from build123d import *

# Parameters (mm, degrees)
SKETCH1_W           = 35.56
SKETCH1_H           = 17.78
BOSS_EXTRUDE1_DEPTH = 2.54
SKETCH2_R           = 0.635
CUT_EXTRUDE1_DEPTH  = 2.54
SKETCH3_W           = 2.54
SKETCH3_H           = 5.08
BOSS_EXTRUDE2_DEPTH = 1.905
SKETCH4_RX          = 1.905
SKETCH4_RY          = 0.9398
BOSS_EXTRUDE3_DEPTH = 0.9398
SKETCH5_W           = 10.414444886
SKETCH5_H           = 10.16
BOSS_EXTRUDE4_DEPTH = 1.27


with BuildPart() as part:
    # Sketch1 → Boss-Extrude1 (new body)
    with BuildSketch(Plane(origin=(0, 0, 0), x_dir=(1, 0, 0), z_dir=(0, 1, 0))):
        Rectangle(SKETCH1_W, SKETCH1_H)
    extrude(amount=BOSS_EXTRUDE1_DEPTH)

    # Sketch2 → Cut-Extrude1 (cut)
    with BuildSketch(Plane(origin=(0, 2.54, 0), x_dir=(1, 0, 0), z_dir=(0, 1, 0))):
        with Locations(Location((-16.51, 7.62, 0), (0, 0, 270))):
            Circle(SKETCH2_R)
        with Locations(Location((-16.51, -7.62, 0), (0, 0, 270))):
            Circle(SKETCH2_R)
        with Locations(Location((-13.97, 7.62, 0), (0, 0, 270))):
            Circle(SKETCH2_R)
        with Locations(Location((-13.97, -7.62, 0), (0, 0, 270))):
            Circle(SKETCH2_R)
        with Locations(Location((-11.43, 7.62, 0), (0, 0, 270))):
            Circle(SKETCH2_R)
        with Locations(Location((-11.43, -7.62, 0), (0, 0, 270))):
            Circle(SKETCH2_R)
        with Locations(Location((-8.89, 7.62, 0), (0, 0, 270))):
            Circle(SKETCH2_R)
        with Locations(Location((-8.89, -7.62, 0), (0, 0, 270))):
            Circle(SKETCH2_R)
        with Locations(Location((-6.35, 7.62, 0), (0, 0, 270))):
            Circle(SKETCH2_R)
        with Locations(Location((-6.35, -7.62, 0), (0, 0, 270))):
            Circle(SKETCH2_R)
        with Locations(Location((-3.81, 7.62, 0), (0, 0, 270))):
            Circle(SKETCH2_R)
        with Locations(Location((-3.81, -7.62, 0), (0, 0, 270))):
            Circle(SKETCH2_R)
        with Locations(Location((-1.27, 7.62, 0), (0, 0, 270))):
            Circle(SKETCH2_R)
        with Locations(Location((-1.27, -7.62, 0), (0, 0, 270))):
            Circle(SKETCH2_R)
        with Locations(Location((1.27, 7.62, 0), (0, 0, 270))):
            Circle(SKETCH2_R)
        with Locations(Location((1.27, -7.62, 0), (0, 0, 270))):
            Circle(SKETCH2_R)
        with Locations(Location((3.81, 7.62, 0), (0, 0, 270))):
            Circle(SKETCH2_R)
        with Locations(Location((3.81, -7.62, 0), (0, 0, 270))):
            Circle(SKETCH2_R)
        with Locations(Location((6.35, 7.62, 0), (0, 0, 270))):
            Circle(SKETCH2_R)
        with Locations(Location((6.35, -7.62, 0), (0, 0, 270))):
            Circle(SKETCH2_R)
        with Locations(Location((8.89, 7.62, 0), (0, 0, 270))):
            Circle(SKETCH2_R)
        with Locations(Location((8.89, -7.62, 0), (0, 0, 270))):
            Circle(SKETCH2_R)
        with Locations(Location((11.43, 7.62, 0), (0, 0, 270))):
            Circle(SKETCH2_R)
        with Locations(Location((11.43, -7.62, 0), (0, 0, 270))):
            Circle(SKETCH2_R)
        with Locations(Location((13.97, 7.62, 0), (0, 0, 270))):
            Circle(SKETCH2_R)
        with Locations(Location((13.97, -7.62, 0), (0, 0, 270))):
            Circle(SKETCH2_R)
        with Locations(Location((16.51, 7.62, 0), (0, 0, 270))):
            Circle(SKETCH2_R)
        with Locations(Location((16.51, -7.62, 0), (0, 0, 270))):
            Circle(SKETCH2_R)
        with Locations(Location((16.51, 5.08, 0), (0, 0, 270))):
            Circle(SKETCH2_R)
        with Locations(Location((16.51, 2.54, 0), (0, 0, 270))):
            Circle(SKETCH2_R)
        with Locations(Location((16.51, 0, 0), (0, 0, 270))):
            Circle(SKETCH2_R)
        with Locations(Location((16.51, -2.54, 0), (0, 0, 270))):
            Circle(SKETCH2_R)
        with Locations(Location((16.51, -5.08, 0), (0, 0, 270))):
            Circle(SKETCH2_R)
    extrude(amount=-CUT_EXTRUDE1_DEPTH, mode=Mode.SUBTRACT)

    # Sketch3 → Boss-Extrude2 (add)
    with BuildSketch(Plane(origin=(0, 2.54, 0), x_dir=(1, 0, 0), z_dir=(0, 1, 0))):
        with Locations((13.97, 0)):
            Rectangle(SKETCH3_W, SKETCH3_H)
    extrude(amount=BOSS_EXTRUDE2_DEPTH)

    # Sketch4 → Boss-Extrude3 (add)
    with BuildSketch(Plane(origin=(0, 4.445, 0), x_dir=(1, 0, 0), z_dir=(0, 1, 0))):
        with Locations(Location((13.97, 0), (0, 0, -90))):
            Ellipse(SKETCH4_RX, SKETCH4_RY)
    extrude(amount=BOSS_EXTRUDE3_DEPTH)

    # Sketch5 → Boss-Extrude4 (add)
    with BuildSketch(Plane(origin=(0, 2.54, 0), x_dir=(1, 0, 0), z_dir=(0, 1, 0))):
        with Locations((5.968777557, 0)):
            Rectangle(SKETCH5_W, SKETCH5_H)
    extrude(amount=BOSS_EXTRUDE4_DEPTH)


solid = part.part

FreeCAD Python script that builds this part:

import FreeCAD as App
import Part
import Sketcher

V = App.Vector
Q = App.Units.Quantity

doc = App.newDocument("Part")
params = doc.addObject("Spreadsheet::Sheet", "Params")
for row, (alias, value) in enumerate([
    ("sketch1_width", "1.4 in"),
    ("sketch1_height", "0.7 in"),
    ("pad1_length", "0.1 in"),
    ("sketch2_diameter", "0.05 in"),
    ("pocket1_length", "0.1 in"),
    ("sketch3_width", "0.1 in"),
    ("sketch3_height", "0.2 in"),
    ("pad2_length", "0.075 in"),
    ("pad3_length", "0.037 in"),
    ("sketch5_height", "0.4 in"),
    ("pad4_length", "0.05 in"),
], start=1):
    params.set(f"A{row}", alias)
    params.set(f"B{row}", "=" + value)
    params.setAlias(f"B{row}", alias)

body = doc.addObject("PartDesign::Body", "Body")

sketch1 = doc.addObject("Sketcher::SketchObject", "Sketch")
body.addObject(sketch1)
sketch1.AttachmentSupport = (doc.XZ_Plane, [""])
sketch1.MapMode = "FlatFace"
sketch1.addGeometry([
    Part.LineSegment(V(-18, -9, 0), V(-18, 9, 0)),
    Part.LineSegment(V(-18, 9, 0), V(18, 9, 0)),
    Part.LineSegment(V(18, 9, 0), V(18, -9, 0)),
    Part.LineSegment(V(18, -9, 0), V(-18, -9, 0)),
], False)
sketch1.addConstraint([
    Sketcher.Constraint("Coincident", 0, 2, 1, 1),
    Sketcher.Constraint("Coincident", 1, 2, 2, 1),
    Sketcher.Constraint("Coincident", 2, 2, 3, 1),
    Sketcher.Constraint("Coincident", 3, 2, 0, 1),
    Sketcher.Constraint("Vertical", 0),
    Sketcher.Constraint("Horizontal", 1),
    Sketcher.Constraint("Vertical", 2),
    Sketcher.Constraint("Horizontal", 3),
    Sketcher.Constraint("Symmetric", 0, 2, 2, 2, -1, 1),
    Sketcher.Constraint("DistanceX", 1, 1, 1, 2, Q("1.4 in")),
    Sketcher.Constraint("DistanceY", 0, 1, 0, 2, Q("0.7 in")),
])
sketch1.setExpression("Constraints[9]", "Params.sketch1_width")
sketch1.setExpression("Constraints[10]", "Params.sketch1_height")
pad1 = doc.addObject("PartDesign::Pad", "Pad")
body.addObject(pad1)
pad1.Profile = sketch1
pad1.setExpression("Length", "Params.pad1_length")
pad1.Reversed = True

sketch2 = doc.addObject("Sketcher::SketchObject", "Sketch001")
body.addObject(sketch2)
sketch2.AttachmentSupport = (doc.XZ_Plane, [""])
sketch2.MapMode = "FlatFace"
sketch2.AttachmentOffset = App.Placement(V(0, 0, -0.1 * 25.4), App.Rotation())
sketch2.addGeometry([
    Part.Circle(V(-16.5, -7.6, 0), V(0, 0, 1), 0.6),
    Part.Circle(V(-16.5, 7.6, 0), V(0, 0, 1), 0.6),
    Part.Circle(V(-14, -7.6, 0), V(0, 0, 1), 0.6),
    Part.Circle(V(-14, 7.6, 0), V(0, 0, 1), 0.6),
    Part.Circle(V(-11.4, -7.6, 0), V(0, 0, 1), 0.6),
    Part.Circle(V(-11.4, 7.6, 0), V(0, 0, 1), 0.6),
    Part.Circle(V(-8.9, -7.6, 0), V(0, 0, 1), 0.6),
    Part.Circle(V(-8.9, 7.6, 0), V(0, 0, 1), 0.6),
    Part.Circle(V(-6.3, -7.6, 0), V(0, 0, 1), 0.6),
    Part.Circle(V(-6.3, 7.6, 0), V(0, 0, 1), 0.6),
    Part.Circle(V(-3.8, -7.6, 0), V(0, 0, 1), 0.6),
    Part.Circle(V(-3.8, 7.6, 0), V(0, 0, 1), 0.6),
    Part.Circle(V(-1.3, -7.6, 0), V(0, 0, 1), 0.6),
    Part.Circle(V(-1.3, 7.6, 0), V(0, 0, 1), 0.6),
    Part.Circle(V(1.3, -7.6, 0), V(0, 0, 1), 0.6),
    Part.Circle(V(1.3, 7.6, 0), V(0, 0, 1), 0.6),
    Part.Circle(V(3.8, -7.6, 0), V(0, 0, 1), 0.6),
    Part.Circle(V(3.8, 7.6, 0), V(0, 0, 1), 0.6),
    Part.Circle(V(6.3, -7.6, 0), V(0, 0, 1), 0.6),
    Part.Circle(V(6.3, 7.6, 0), V(0, 0, 1), 0.6),
    Part.Circle(V(8.9, -7.6, 0), V(0, 0, 1), 0.6),
    Part.Circle(V(8.9, 7.6, 0), V(0, 0, 1), 0.6),
    Part.Circle(V(11.4, -7.6, 0), V(0, 0, 1), 0.6),
    Part.Circle(V(11.4, 7.6, 0), V(0, 0, 1), 0.6),
    Part.Circle(V(14, -7.6, 0), V(0, 0, 1), 0.6),
    Part.Circle(V(14, 7.6, 0), V(0, 0, 1), 0.6),
    Part.Circle(V(16.5, -7.6, 0), V(0, 0, 1), 0.6),
    Part.Circle(V(16.5, 7.6, 0), V(0, 0, 1), 0.6),
    Part.Circle(V(16.5, -5.1, 0), V(0, 0, 1), 0.6),
    Part.Circle(V(16.5, -2.5, 0), V(0, 0, 1), 0.6),
    Part.Circle(V(16.5, 0, 0), V(0, 0, 1), 0.6),
    Part.Circle(V(16.5, 2.5, 0), V(0, 0, 1), 0.6),
    Part.Circle(V(16.5, 5.1, 0), V(0, 0, 1), 0.6),
], False)
sketch2.addConstraint([
    Sketcher.Constraint("Equal", 0, 1),
    Sketcher.Constraint("Equal", 1, 2),
    Sketcher.Constraint("Equal", 2, 3),
    Sketcher.Constraint("Equal", 3, 4),
    Sketcher.Constraint("Equal", 4, 5),
    Sketcher.Constraint("Equal", 5, 6),
    Sketcher.Constraint("Equal", 6, 7),
    Sketcher.Constraint("Equal", 7, 8),
    Sketcher.Constraint("Equal", 8, 9),
    Sketcher.Constraint("Equal", 9, 10),
    Sketcher.Constraint("Equal", 10, 11),
    Sketcher.Constraint("Equal", 11, 12),
    Sketcher.Constraint("Equal", 12, 13),
    Sketcher.Constraint("Equal", 13, 14),
    Sketcher.Constraint("Equal", 14, 15),
    Sketcher.Constraint("Equal", 15, 16),
    Sketcher.Constraint("Equal", 16, 17),
    Sketcher.Constraint("Equal", 17, 18),
    Sketcher.Constraint("Equal", 18, 19),
    Sketcher.Constraint("Equal", 19, 20),
    Sketcher.Constraint("Equal", 20, 21),
    Sketcher.Constraint("Equal", 21, 22),
    Sketcher.Constraint("Equal", 22, 23),
    Sketcher.Constraint("Equal", 23, 24),
    Sketcher.Constraint("Equal", 24, 25),
    Sketcher.Constraint("Equal", 25, 26),
    Sketcher.Constraint("Equal", 26, 27),
    Sketcher.Constraint("Equal", 27, 28),
    Sketcher.Constraint("Equal", 28, 29),
    Sketcher.Constraint("Equal", 29, 30),
    Sketcher.Constraint("Equal", 30, 31),
    Sketcher.Constraint("Equal", 31, 32),
    Sketcher.Constraint("Symmetric", 13, 3, 14, 3, -1, 1),
    Sketcher.Constraint("Symmetric", 12, 3, 15, 3, -1, 1),
    Sketcher.Constraint("Symmetric", 11, 3, 16, 3, -1, 1),
    Sketcher.Constraint("Symmetric", 10, 3, 17, 3, -1, 1),
    Sketcher.Constraint("Symmetric", 9, 3, 18, 3, -1, 1),
    Sketcher.Constraint("Symmetric", 8, 3, 19, 3, -1, 1),
    Sketcher.Constraint("Symmetric", 7, 3, 20, 3, -1, 1),
    Sketcher.Constraint("Symmetric", 6, 3, 21, 3, -1, 1),
    Sketcher.Constraint("Symmetric", 5, 3, 22, 3, -1, 1),
    Sketcher.Constraint("Symmetric", 4, 3, 23, 3, -1, 1),
    Sketcher.Constraint("Symmetric", 3, 3, 24, 3, -1, 1),
    Sketcher.Constraint("Symmetric", 2, 3, 25, 3, -1, 1),
    Sketcher.Constraint("Symmetric", 1, 3, 26, 3, -1, 1),
    Sketcher.Constraint("Symmetric", 0, 3, 27, 3, -1, 1),
    Sketcher.Constraint("Symmetric", 12, 3, 14, 3, -2),
    Sketcher.Constraint("Symmetric", 10, 3, 16, 3, -2),
    Sketcher.Constraint("Symmetric", 8, 3, 18, 3, -2),
    Sketcher.Constraint("Symmetric", 6, 3, 20, 3, -2),
    Sketcher.Constraint("Symmetric", 4, 3, 22, 3, -2),
    Sketcher.Constraint("Symmetric", 2, 3, 24, 3, -2),
    Sketcher.Constraint("Symmetric", 0, 3, 26, 3, -2),
    Sketcher.Constraint("Symmetric", 29, 3, 31, 3, -1),
    Sketcher.Constraint("Symmetric", 28, 3, 32, 3, -1),
    Sketcher.Constraint("PointOnObject", 30, 3, -1),
    Sketcher.Constraint("Horizontal", 0, 3, 2, 3),
    Sketcher.Constraint("Horizontal", 2, 3, 4, 3),
    Sketcher.Constraint("Horizontal", 4, 3, 6, 3),
    Sketcher.Constraint("Horizontal", 6, 3, 8, 3),
    Sketcher.Constraint("Horizontal", 8, 3, 10, 3),
    Sketcher.Constraint("Horizontal", 10, 3, 12, 3),
    Sketcher.Constraint("Vertical", 27, 3, 28, 3),
    Sketcher.Constraint("Vertical", 28, 3, 29, 3),
    Sketcher.Constraint("Vertical", 29, 3, 30, 3),
    Sketcher.Constraint("Diameter", 0, Q("0.05 in")),
    Sketcher.Constraint("DistanceY", 0, 3, -1, 1, Q("0.3 in")),
    Sketcher.Constraint("DistanceY", 28, 3, -1, 1, Q("0.2 in")),
    Sketcher.Constraint("DistanceY", 29, 3, -1, 1, Q("0.1 in")),
    Sketcher.Constraint("DistanceX", 0, 3, 2, 3, Q("0.1 in")),
    Sketcher.Constraint("DistanceX", 2, 3, 4, 3, Q("0.1 in")),
    Sketcher.Constraint("DistanceX", 4, 3, 6, 3, Q("0.1 in")),
    Sketcher.Constraint("DistanceX", 6, 3, 8, 3, Q("0.1 in")),
    Sketcher.Constraint("DistanceX", 8, 3, 10, 3, Q("0.1 in")),
    Sketcher.Constraint("DistanceX", 10, 3, 12, 3, Q("0.1 in")),
    Sketcher.Constraint("DistanceX", 12, 3, 14, 3, Q("0.1 in")),
])
sketch2.setExpression("Constraints[65]", "Params.sketch2_diameter")
pocket1 = doc.addObject("PartDesign::Pocket", "Pocket")
body.addObject(pocket1)
pocket1.Profile = sketch2
pocket1.setExpression("Length", "Params.pocket1_length")
pocket1.Reversed = True

sketch3 = doc.addObject("Sketcher::SketchObject", "Sketch002")
body.addObject(sketch3)
sketch3.AttachmentSupport = (doc.XZ_Plane, [""])
sketch3.MapMode = "FlatFace"
sketch3.AttachmentOffset = App.Placement(V(0, 0, -0.1 * 25.4), App.Rotation())
sketch3.addGeometry([
    Part.LineSegment(V(12.7, -2.5, 0), V(12.7, 2.5, 0)),
    Part.LineSegment(V(12.7, 2.5, 0), V(15.2, 2.5, 0)),
    Part.LineSegment(V(15.2, 2.5, 0), V(15.2, -2.5, 0)),
    Part.LineSegment(V(15.2, -2.5, 0), V(12.7, -2.5, 0)),
], False)
sketch3.addConstraint([
    Sketcher.Constraint("Coincident", 0, 2, 1, 1),
    Sketcher.Constraint("Coincident", 1, 2, 2, 1),
    Sketcher.Constraint("Coincident", 2, 2, 3, 1),
    Sketcher.Constraint("Coincident", 3, 2, 0, 1),
    Sketcher.Constraint("Vertical", 0),
    Sketcher.Constraint("Horizontal", 1),
    Sketcher.Constraint("Vertical", 2),
    Sketcher.Constraint("Horizontal", 3),
    Sketcher.Constraint("DistanceX", 1, 1, 1, 2, Q("0.1 in")),
    Sketcher.Constraint("DistanceY", 0, 1, 0, 2, Q("0.2 in")),
    Sketcher.Constraint("DistanceX", -1, 1, 0, 2, Q("0.5 in")),
    Sketcher.Constraint("DistanceY", -1, 1, 0, 2, Q("0.1 in")),
])
sketch3.setExpression("Constraints[8]", "Params.sketch3_width")
sketch3.setExpression("Constraints[9]", "Params.sketch3_height")
pad2 = doc.addObject("PartDesign::Pad", "Pad001")
body.addObject(pad2)
pad2.Profile = sketch3
pad2.setExpression("Length", "Params.pad2_length")
pad2.Reversed = True

sketch4 = doc.addObject("Sketcher::SketchObject", "Sketch003")
body.addObject(sketch4)
sketch4.AttachmentSupport = (doc.XZ_Plane, [""])
sketch4.MapMode = "FlatFace"
sketch4.AttachmentOffset = App.Placement(V(0, 0, -0.175 * 25.4), App.Rotation())
sketch4.addGeometry(Part.Ellipse(V(13.97, 1.905, 0), V(13.0302, 0, 0), V(13.97, 0, 0)), False)
sketch4.addConstraint(Sketcher.Constraint("Block", 0))
pad3 = doc.addObject("PartDesign::Pad", "Pad002")
body.addObject(pad3)
pad3.Profile = sketch4
pad3.setExpression("Length", "Params.pad3_length")
pad3.Reversed = True

sketch5 = doc.addObject("Sketcher::SketchObject", "Sketch004")
body.addObject(sketch5)
sketch5.AttachmentSupport = (doc.XZ_Plane, [""])
sketch5.MapMode = "FlatFace"
sketch5.AttachmentOffset = App.Placement(V(0, 0, -0.1 * 25.4), App.Rotation())
sketch5.addGeometry([
    Part.LineSegment(V(1, -5, 0), V(1, 5, 0)),
    Part.LineSegment(V(1, 5, 0), V(11, 5, 0)),
    Part.LineSegment(V(11, 5, 0), V(11, -5, 0)),
    Part.LineSegment(V(11, -5, 0), V(1, -5, 0)),
], False)
sketch5.addConstraint([
    Sketcher.Constraint("Coincident", 0, 2, 1, 1),
    Sketcher.Constraint("Coincident", 1, 2, 2, 1),
    Sketcher.Constraint("Coincident", 2, 2, 3, 1),
    Sketcher.Constraint("Coincident", 3, 2, 0, 1),
    Sketcher.Constraint("Vertical", 0),
    Sketcher.Constraint("Horizontal", 1),
    Sketcher.Constraint("Vertical", 2),
    Sketcher.Constraint("Horizontal", 3),
    Sketcher.Constraint("DistanceY", 0, 1, 0, 2, Q("0.4 in")),
    Sketcher.Constraint("DistanceY", -1, 1, 0, 2, Q("0.2 in")),
    Sketcher.Constraint("DistanceX", -1, 1, 1, 2, Q("0.44 in")),
    Sketcher.Constraint("DistanceX", 1, 1, 1, 2, 10.414445),
])
sketch5.setExpression("Constraints[8]", "Params.sketch5_height")
pad4 = doc.addObject("PartDesign::Pad", "Pad003")
body.addObject(pad4)
pad4.Profile = sketch5
pad4.setExpression("Length", "Params.pad4_length")
pad4.Reversed = True

doc.recompute()
